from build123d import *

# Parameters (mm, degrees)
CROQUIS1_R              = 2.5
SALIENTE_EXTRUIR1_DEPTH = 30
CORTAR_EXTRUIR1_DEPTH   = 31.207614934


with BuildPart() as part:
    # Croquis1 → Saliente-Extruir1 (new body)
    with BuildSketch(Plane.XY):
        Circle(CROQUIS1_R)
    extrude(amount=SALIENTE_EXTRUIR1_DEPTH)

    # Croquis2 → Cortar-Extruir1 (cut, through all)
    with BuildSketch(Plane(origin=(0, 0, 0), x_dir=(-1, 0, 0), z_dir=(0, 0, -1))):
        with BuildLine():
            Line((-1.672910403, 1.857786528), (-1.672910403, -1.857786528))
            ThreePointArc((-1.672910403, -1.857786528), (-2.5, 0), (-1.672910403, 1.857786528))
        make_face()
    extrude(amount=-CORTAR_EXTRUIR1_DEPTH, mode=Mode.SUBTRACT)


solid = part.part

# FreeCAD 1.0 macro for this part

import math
import FreeCAD as App
import Part
import Sketcher

V = App.Vector
Q = App.Units.Quantity

doc = App.newDocument("Part")
body = doc.addObject("PartDesign::Body", "Body")

# Sketch on XY plane
sketch1 = body.newObject("Sketcher::SketchObject", "Sketch")
sketch1.AttachmentSupport = (doc.getObject("XY_Plane"), [""])
sketch1.MapMode = "FlatFace"
sketch1.addGeometry(Part.Circle(V(0, 0, 0), V(0, 0, 1), 2.5), False)
sketch1.addConstraint(Sketcher.Constraint("Coincident", 0, 3, -1, 1))
sketch1.addConstraint(Sketcher.Constraint("Diameter", 0, Q("5 mm")))
pad1 = body.newObject("PartDesign::Pad", "Pad")
pad1.Profile = sketch1
pad1.Length = 30

# Sketch on XY plane
sketch2 = body.newObject("Sketcher::SketchObject", "Sketch001")
sketch2.AttachmentSupport = (doc.getObject("XY_Plane"), [""])
sketch2.MapMode = "FlatFace"
sketch2.addGeometry(Part.LineSegment(V(1.7, -1.9, 0), V(1.7, 1.9, 0)), False)
sketch2.addGeometry(Part.ArcOfCircle(Part.Circle(V(0, 0, 0), V(0, 0, 1), 2.5), math.radians(-48), math.radians(48)), False)
sketch2.addConstraint(Sketcher.Constraint("Coincident", 0, 1, 1, 1))
sketch2.addConstraint(Sketcher.Constraint("Coincident", 1, 2, 0, 2))
sketch2.addConstraint(Sketcher.Constraint("Vertical", 0))
sketch2.addConstraint(Sketcher.Constraint("Coincident", 1, 3, -1, 1))
sketch2.addConstraint(Sketcher.Constraint("Radius", 1, Q("2.5 mm")))
sketch2.addConstraint(Sketcher.Constraint("DistanceY", 0, 1, 0, 2, Q("3.715573 mm")))
pocket1 = body.newObject("PartDesign::Pocket", "Pocket")
pocket1.Profile = sketch2
pocket1.Type = "ThroughAll"
pocket1.Reversed = True

doc.recompute()
